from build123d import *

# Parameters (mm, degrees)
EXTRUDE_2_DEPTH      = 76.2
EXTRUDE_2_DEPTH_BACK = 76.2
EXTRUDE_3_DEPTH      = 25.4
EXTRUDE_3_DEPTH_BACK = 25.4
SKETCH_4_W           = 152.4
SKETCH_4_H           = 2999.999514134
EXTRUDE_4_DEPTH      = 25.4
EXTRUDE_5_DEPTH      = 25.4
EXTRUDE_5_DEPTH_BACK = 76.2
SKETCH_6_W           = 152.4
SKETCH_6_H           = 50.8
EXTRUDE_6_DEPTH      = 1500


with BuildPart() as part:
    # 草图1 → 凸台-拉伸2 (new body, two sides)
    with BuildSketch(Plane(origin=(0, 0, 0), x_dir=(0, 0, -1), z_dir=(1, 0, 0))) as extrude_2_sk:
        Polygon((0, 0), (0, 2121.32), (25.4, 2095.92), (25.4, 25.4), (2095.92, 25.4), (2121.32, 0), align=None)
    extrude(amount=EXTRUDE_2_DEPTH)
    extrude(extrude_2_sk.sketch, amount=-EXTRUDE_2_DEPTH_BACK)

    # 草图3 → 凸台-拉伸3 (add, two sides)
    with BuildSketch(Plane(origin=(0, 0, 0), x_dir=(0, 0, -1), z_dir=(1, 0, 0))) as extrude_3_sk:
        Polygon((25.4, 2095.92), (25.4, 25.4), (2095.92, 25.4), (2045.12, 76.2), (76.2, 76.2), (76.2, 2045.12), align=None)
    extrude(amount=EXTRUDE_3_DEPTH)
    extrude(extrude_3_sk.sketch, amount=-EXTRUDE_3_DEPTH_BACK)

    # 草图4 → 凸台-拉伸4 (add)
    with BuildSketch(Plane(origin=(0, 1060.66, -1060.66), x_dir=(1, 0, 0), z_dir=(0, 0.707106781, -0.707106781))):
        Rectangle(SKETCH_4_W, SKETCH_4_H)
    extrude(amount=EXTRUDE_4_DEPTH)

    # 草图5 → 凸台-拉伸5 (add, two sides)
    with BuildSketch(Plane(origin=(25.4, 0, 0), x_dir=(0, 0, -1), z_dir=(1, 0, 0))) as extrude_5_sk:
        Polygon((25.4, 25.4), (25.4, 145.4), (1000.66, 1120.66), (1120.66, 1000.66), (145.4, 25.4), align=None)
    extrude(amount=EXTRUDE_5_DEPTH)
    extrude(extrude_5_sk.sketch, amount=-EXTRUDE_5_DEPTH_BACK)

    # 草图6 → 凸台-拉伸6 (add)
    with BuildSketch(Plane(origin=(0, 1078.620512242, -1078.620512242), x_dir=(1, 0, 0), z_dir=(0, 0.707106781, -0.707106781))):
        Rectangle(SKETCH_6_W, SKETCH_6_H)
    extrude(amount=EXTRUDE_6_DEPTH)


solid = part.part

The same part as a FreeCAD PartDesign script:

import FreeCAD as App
import Part
import Sketcher

V = App.Vector
Q = App.Units.Quantity


def add_polygon(sketch, points):
    """Adds a closed chain of lines whose ends are joined by coincident constraints."""
    first, n = sketch.GeometryCount, len(points)
    for a, b in zip(points, points[1:] + points[:1]):
        sketch.addGeometry(Part.LineSegment(App.Vector(*a, 0), App.Vector(*b, 0)), False)
    for i in range(n):
        sketch.addConstraint(Sketcher.Constraint("Coincident", first + i, 2, first + (i + 1) % n, 1))

doc = App.newDocument("Part")
body = doc.addObject("PartDesign::Body", "Body")

# Sketch on YZ plane
sketch1 = body.newObject("Sketcher::SketchObject", "Sketch")
sketch1.AttachmentSupport = (doc.getObject("YZ_Plane"), [""])
sketch1.MapMode = "FlatFace"
add_polygon(sketch1, [(2121.32, 0), (0, 0), (0, -2121.32), (25.4, -2095.92), (25.4, -25.4), (2095.92, -25.4)])  # lines 0-5
sketch1.addConstraint([
    Sketcher.Constraint("Horizontal", 0),
    Sketcher.Constraint("Vertical", 1),
    Sketcher.Constraint("Vertical", 3),
    Sketcher.Constraint("Horizontal", 4),
    Sketcher.Constraint("Coincident", 0, 2, -1, 1),
    Sketcher.Constraint("Parallel", 2, 5),
    Sketcher.Constraint("Equal", 0, 1),
    Sketcher.Constraint("Equal", 4, 3),
    Sketcher.Constraint("Equal", 2, 5),
    Sketcher.Constraint("DistanceX", -1, 1, 2, 2, Q("1 in")),
    Sketcher.Constraint("DistanceX", 0, 2, 0, 1, Q("2121.32 mm")),
])
pad1 = body.newObject("PartDesign::Pad", "Pad")
pad1.Profile = sketch1
pad1.Type = "TwoLengths"
pad1.Length = Q("3 in")
pad1.Length2 = Q("3 in")

# Sketch on YZ plane
sketch2 = body.newObject("Sketcher::SketchObject", "Sketch001")
sketch2.AttachmentSupport = (doc.getObject("YZ_Plane"), [""])
sketch2.MapMode = "FlatFace"
add_polygon(sketch2, [(2095.92, -25.4), (25.4, -25.4), (25.4, -2095.92), (76.2, -2045.12), (76.2, -76.2), (2045.12, -76.2)])  # lines 0-5
sketch2.addConstraint([
    Sketcher.Constraint("Horizontal", 0),
    Sketcher.Constraint("Vertical", 1),
    Sketcher.Constraint("Vertical", 3),
    Sketcher.Constraint("Horizontal", 4),
    Sketcher.Constraint("Parallel", 2, 5),
    Sketcher.Constraint("Equal", 0, 1),
    Sketcher.Constraint("Equal", 4, 3),
    Sketcher.Constraint("Equal", 2, 5),
    Sketcher.Constraint("DistanceX", -1, 1, 0, 2, Q("1 in")),
    Sketcher.Constraint("DistanceY", 0, 2, -1, 1, Q("1 in")),
    Sketcher.Constraint("DistanceX", -1, 1, 2, 2, Q("3 in")),
    Sketcher.Constraint("DistanceX", 0, 2, 0, 1, Q("2070.52 mm")),
])
pad2 = body.newObject("PartDesign::Pad", "Pad001")
pad2.Profile = sketch2
pad2.Type = "TwoLengths"
pad2.Length = Q("1 in")
pad2.Length2 = Q("1 in")

# Sketch on an angled plane
sketch3 = body.newObject("Sketcher::SketchObject", "Sketch002")
sketch3.Placement = App.Placement(V(0, 1060.66, -1060.66), App.Rotation(V(1, 0, 0), V(0, -0.707106781, -0.707106781), V(0, 0.707106781, -0.707106781), "ZXY"))
add_polygon(sketch3, [(-76.2, 1499.999756), (-76.2, -1499.999756), (76.2, -1499.999756), (76.2, 1499.999756)])  # lines 0-3
sketch3.addConstraint([
    Sketcher.Constraint("Vertical", 0),
    Sketcher.Constraint("Horizontal", 1),
    Sketcher.Constraint("Vertical", 2),
    Sketcher.Constraint("Horizontal", 3),
    Sketcher.Constraint("Symmetric", 0, 2, 2, 2, -1, 1),
    Sketcher.Constraint("DistanceX", 1, 1, 1, 2, Q("6 in")),
    Sketcher.Constraint("DistanceY", 0, 2, 0, 1, Q("2999.999513 mm")),
])
pad3 = body.newObject("PartDesign::Pad", "Pad002")
pad3.Profile = sketch3
pad3.Length = Q("1 in")

# Sketch on YZ plane
sketch4 = body.newObject("Sketcher::SketchObject", "Sketch003")
sketch4.AttachmentSupport = (doc.getObject("YZ_Plane"), [""])
sketch4.MapMode = "FlatFace"
sketch4.AttachmentOffset = App.Placement(V(0, 0, 1 * 25.4), App.Rotation())
add_polygon(sketch4, [(145.4, -25.4), (25.4, -25.4), (25.4, -145.4), (1000.66, -1120.66), (1120.66, -1000.66)])  # lines 0-4
sketch4.addConstraint([
    Sketcher.Constraint("Horizontal", 0),
    Sketcher.Constraint("Vertical", 1),
    Sketcher.Constraint("Perpendicular", 2, 3),
    Sketcher.Constraint("Perpendicular", 3, 4),
    Sketcher.Constraint("Equal", 0, 1),
    Sketcher.Constraint("Equal", 2, 4),
    Sketcher.Constraint("DistanceX", -1, 1, 0, 2, Q("1 in")),
    Sketcher.Constraint("DistanceY", 0, 2, -1, 1, Q("1 in")),
    Sketcher.Constraint("DistanceX", 0, 2, 0, 1, Q("120 mm")),
    Sketcher.Constraint("DistanceX", -1, 1, 2, 2, Q("1000.66 mm")),
])
pad4 = body.newObject("PartDesign::Pad", "Pad003")
pad4.Profile = sketch4
pad4.Type = "TwoLengths"
pad4.Length = Q("1 in")
pad4.Length2 = Q("3 in")

# Sketch on an angled plane
sketch5 = body.newObject("Sketcher::SketchObject", "Sketch004")
sketch5.Placement = App.Placement(V(0, 1078.620512, -1078.620512), App.Rotation(V(1, 0, 0), V(0, -0.707106781, -0.707106781), V(0, 0.707106781, -0.707106781), "ZXY"))
add_polygon(sketch5, [(-76.2, 25.4), (-76.2, -25.4), (76.2, -25.4), (76.2, 25.4)])  # lines 0-3
sketch5.addConstraint([
    Sketcher.Constraint("Vertical", 0),
    Sketcher.Constraint("Horizontal", 1),
    Sketcher.Constraint("Vertical", 2),
    Sketcher.Constraint("Horizontal", 3),
    Sketcher.Constraint("Symmetric", 0, 2, 2, 2, -1, 1),
    Sketcher.Constraint("DistanceX", 1, 1, 1, 2, Q("6 in")),
    Sketcher.Constraint("DistanceY", 0, 2, 0, 1, Q("2 in")),
])
pad5 = body.newObject("PartDesign::Pad", "Pad004")
pad5.Profile = sketch5
pad5.Length = 1500

doc.recompute()
